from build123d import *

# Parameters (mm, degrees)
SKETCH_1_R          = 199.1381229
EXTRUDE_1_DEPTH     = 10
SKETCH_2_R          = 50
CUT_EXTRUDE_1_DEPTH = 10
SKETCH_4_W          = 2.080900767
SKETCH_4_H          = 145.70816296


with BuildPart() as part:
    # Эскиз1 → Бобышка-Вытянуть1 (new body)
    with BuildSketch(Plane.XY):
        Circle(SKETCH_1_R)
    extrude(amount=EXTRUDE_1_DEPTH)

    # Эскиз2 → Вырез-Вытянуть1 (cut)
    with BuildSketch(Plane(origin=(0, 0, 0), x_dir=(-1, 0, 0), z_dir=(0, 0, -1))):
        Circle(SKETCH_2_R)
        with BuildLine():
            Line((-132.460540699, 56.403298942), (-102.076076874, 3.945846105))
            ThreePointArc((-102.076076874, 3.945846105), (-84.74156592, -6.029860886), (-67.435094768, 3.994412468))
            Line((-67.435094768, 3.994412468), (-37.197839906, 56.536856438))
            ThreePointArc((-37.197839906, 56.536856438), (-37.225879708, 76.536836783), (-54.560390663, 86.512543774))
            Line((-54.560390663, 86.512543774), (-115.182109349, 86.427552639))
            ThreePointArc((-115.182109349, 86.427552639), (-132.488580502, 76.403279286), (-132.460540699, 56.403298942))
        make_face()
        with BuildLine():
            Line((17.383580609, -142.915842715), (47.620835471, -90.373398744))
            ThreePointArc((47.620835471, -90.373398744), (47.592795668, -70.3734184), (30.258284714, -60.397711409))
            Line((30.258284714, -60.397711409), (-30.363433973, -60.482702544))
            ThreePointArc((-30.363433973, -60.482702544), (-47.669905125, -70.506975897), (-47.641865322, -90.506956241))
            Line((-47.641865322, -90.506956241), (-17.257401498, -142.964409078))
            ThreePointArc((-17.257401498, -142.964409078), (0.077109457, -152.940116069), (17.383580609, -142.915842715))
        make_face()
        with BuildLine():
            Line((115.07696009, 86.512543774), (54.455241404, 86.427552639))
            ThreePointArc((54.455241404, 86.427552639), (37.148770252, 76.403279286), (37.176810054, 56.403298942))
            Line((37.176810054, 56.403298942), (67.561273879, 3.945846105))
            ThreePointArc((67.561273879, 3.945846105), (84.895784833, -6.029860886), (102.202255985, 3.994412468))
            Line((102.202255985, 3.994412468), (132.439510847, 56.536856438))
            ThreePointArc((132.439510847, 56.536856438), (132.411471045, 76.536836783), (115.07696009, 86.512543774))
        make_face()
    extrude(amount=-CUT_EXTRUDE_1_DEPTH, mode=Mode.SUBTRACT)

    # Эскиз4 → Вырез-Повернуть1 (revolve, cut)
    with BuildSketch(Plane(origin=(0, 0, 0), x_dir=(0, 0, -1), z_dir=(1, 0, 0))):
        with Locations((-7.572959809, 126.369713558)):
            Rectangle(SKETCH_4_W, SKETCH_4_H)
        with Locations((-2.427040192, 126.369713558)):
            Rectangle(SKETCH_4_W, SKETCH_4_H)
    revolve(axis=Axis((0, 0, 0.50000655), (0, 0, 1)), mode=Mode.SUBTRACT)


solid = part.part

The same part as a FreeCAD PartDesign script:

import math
import FreeCAD as App
import Part
import Sketcher

V = App.Vector


def add_polygon(sketch, points):
    """Adds a closed chain of lines whose ends are joined by coincident constraints."""
    first, n = sketch.GeometryCount, len(points)
    for a, b in zip(points, points[1:] + points[:1]):
        sketch.addGeometry(Part.LineSegment(App.Vector(*a, 0), App.Vector(*b, 0)), False)
    for i in range(n):
        sketch.addConstraint(Sketcher.Constraint("Coincident", first + i, 2, first + (i + 1) % n, 1))

doc = App.newDocument("Part")
params = doc.addObject("Spreadsheet::Sheet", "Params")
for row, (alias, value) in enumerate([
    ("pad1_length", "10 mm"),
    ("sketch2_diameter", "100 mm"),
    ("sketch2_radius", "20 mm"),
    ("pocket1_length", "10 mm"),
    ("groove_angle", "360 deg"),
], start=1):
    params.set(f"A{row}", alias)
    params.set(f"B{row}", "=" + value)
    params.setAlias(f"B{row}", alias)

body = doc.addObject("PartDesign::Body", "Body")

sketch1 = doc.addObject("Sketcher::SketchObject", "Sketch")
body.addObject(sketch1)
sketch1.AttachmentSupport = (doc.XY_Plane, [""])
sketch1.MapMode = "FlatFace"
sketch1.addGeometry(Part.Circle(V(0, 0, 0), V(0, 0, 1), 199.138123), False)
sketch1.addConstraint([
    Sketcher.Constraint("Coincident", 0, 3, -1, 1),
    Sketcher.Constraint("Diameter", 0, 398.276246),
])
pad1 = doc.addObject("PartDesign::Pad", "Pad")
body.addObject(pad1)
pad1.Profile = sketch1
pad1.setExpression("Length", "Params.pad1_length")

sketch2 = doc.addObject("Sketcher::SketchObject", "Sketch001")
body.addObject(sketch2)
sketch2.AttachmentSupport = (doc.XY_Plane, [""])
sketch2.MapMode = "FlatFace"
sketch2.addGeometry([
    Part.Circle(V(0, 0, 0), V(0, 0, 1), 50),
    Part.LineSegment(V(132.460541, 56.403299, 0), V(102.076077, 3.945846, 0)),
    Part.ArcOfCircle(Part.Circle(V(84.769606, 13.970119, 0), V(0, 0, 1), 20), math.radians(-150.080328), math.radians(-30.080328)),
    Part.LineSegment(V(67.435095, 3.994412, 0), V(37.19784, 56.536856, 0)),
    Part.ArcOfCircle(Part.Circle(V(54.532351, 66.512563, 0), V(0, 0, 1), 20), math.radians(89.919672), math.radians(209.919672)),
    Part.LineSegment(V(54.560391, 86.512544, 0), V(115.182109, 86.427553, 0)),
    Part.ArcOfCircle(Part.Circle(V(115.15407, 66.427572, 0), V(0, 0, 1), 20), math.radians(-30.080328), math.radians(89.919672)),
    Part.LineSegment(V(-17.383581, -142.915843, 0), V(-47.620835, -90.373399, 0)),
    Part.ArcOfCircle(Part.Circle(V(-30.286325, -80.397692, 0), V(0, 0, 1), 20), math.radians(89.919672), math.radians(209.919672)),
    Part.LineSegment(V(-30.258285, -60.397711, 0), V(30.363434, -60.482703, 0)),
    Part.ArcOfCircle(Part.Circle(V(30.335394, -80.482683, 0), V(0, 0, 1), 20), math.radians(-30.080328), math.radians(89.919672)),
    Part.LineSegment(V(47.641865, -90.506956, 0), V(17.257401, -142.964409, 0)),
    Part.ArcOfCircle(Part.Circle(V(-0.04907, -132.940136, 0), V(0, 0, 1), 20), math.radians(-150.080328), math.radians(-30.080328)),
    Part.LineSegment(V(-115.07696, 86.512544, 0), V(-54.455241, 86.427553, 0)),
    Part.ArcOfCircle(Part.Circle(V(-54.483281, 66.427572, 0), V(0, 0, 1), 20), math.radians(-30.080328), math.radians(89.919672)),
    Part.LineSegment(V(-37.17681, 56.403299, 0), V(-67.561274, 3.945846, 0)),
    Part.ArcOfCircle(Part.Circle(V(-84.867745, 13.970119, 0), V(0, 0, 1), 20), math.radians(-150.080328), math.radians(-30.080328)),
    Part.LineSegment(V(-102.202256, 3.994412, 0), V(-132.439511, 56.536856, 0)),
    Part.ArcOfCircle(Part.Circle(V(-115.105, 66.512563, 0), V(0, 0, 1), 20), math.radians(89.919672), math.radians(209.919672)),
], False)
sketch2.addConstraint([
    Sketcher.Constraint("Tangent", 1, 2, 2, 2),
    Sketcher.Constraint("Tangent", 2, 1, 3, 1),
    Sketcher.Constraint("Tangent", 3, 2, 4, 2),
    Sketcher.Constraint("Tangent", 4, 1, 5, 1),
    Sketcher.Constraint("Tangent", 5, 2, 6, 2),
    Sketcher.Constraint("Tangent", 6, 1, 1, 1),
    Sketcher.Constraint("Tangent", 7, 2, 8, 2),
    Sketcher.Constraint("Tangent", 8, 1, 9, 1),
    Sketcher.Constraint("Tangent", 9, 2, 10, 2),
    Sketcher.Constraint("Tangent", 10, 1, 11, 1),
    Sketcher.Constraint("Tangent", 11, 2, 12, 2),
    Sketcher.Constraint("Tangent", 12, 1, 7, 1),
    Sketcher.Constraint("Tangent", 13, 2, 14, 2),
    Sketcher.Constraint("Tangent", 14, 1, 15, 1),
    Sketcher.Constraint("Tangent", 15, 2, 16, 2),
    Sketcher.Constraint("Tangent", 16, 1, 17, 1),
    Sketcher.Constraint("Tangent", 17, 2, 18, 2),
    Sketcher.Constraint("Tangent", 18, 1, 13, 1),
    Sketcher.Constraint("Coincident", 0, 3, -1, 1),
    Sketcher.Constraint("Equal", 2, 4),
    Sketcher.Constraint("Equal", 4, 6),
    Sketcher.Constraint("Equal", 6, 8),
    Sketcher.Constraint("Equal", 8, 10),
    Sketcher.Constraint("Equal", 10, 12),
    Sketcher.Constraint("Equal", 12, 14),
    Sketcher.Constraint("Equal", 14, 16),
    Sketcher.Constraint("Equal", 16, 18),
    Sketcher.Constraint("Parallel", 3, 7),
    Sketcher.Constraint("Parallel", 5, 9),
    Sketcher.Constraint("Parallel", 1, 11),
    Sketcher.Constraint("Parallel", 9, 13),
    Sketcher.Constraint("Parallel", 11, 15),
    Sketcher.Constraint("Parallel", 7, 17),
    Sketcher.Constraint("Horizontal", 6, 3, 14, 3),
    Sketcher.Constraint("Horizontal", 2, 3, 16, 3),
    Sketcher.Constraint("Equal", 1, 3),
    Sketcher.Constraint("Equal", 3, 5),
    Sketcher.Constraint("Equal", 5, 7),
    Sketcher.Constraint("Diameter", 0, 100.0),
    Sketcher.Constraint("Radius", 2, 20.0),
    Sketcher.Constraint("DistanceX", 18, 3, -1, 1, 115.105),
    Sketcher.Constraint("DistanceY", -1, 1, 6, 1, 56.403299),
    Sketcher.Constraint("DistanceY", 7, 2, -1, 1, 90.373399),
    Sketcher.Constraint("DistanceX", -1, 1, 11, 2, 17.257401),
    Sketcher.Constraint("DistanceY", 12, 3, 4, 3, 199.452699),
    Sketcher.Constraint("Distance", 1, 60.621778),
    Sketcher.Constraint("DistanceX", -1, 1, 4, 3, 54.532351),
])
sketch2.setExpression("Constraints[38]", "Params.sketch2_diameter")
sketch2.setExpression("Constraints[39]", "Params.sketch2_radius")
pocket1 = doc.addObject("PartDesign::Pocket", "Pocket")
body.addObject(pocket1)
pocket1.Profile = sketch2
pocket1.setExpression("Length", "Params.pocket1_length")
pocket1.Reversed = True

sketch3 = doc.addObject("Sketcher::SketchObject", "Sketch002")
body.addObject(sketch3)
sketch3.AttachmentSupport = (doc.YZ_Plane, [""])
sketch3.MapMode = "FlatFace"
add_polygon(sketch3, [(199.223795, 8.61341), (53.515632, 8.61341), (53.515632, 6.532509), (199.223795, 6.532509)])
add_polygon(sketch3, [(199.223795, 3.467491), (53.515632, 3.467491), (53.515632, 1.38659), (199.223795, 1.38659)])
sketch3.addConstraint([
    Sketcher.Constraint("Horizontal", 0),
    Sketcher.Constraint("Vertical", 1),
    Sketcher.Constraint("Horizontal", 2),
    Sketcher.Constraint("Vertical", 3),
    Sketcher.Constraint("Horizontal", 4),
    Sketcher.Constraint("Vertical", 5),
    Sketcher.Constraint("Horizontal", 6),
    Sketcher.Constraint("Vertical", 7),
    Sketcher.Constraint("Vertical", 1, 2, 4, 2),
    Sketcher.Constraint("Vertical", 3, 2, 6, 2),
    Sketcher.Constraint("Equal", 3, 5),
    Sketcher.Constraint("DistanceY", 1, 2, 1, 1, 2.080901),
    Sketcher.Constraint("DistanceX", 0, 2, 0, 1, 145.708163),
    Sketcher.Constraint("DistanceY", -1, 1, 0, 2, 8.61341),
    Sketcher.Constraint("DistanceY", -1, 1, 4, 2, 3.467491),
    Sketcher.Constraint("DistanceX", -1, 1, 0, 2, 53.515632),
])
groove = doc.addObject("PartDesign::Groove", "Groove")
body.addObject(groove)
groove.Profile = sketch3
groove.ReferenceAxis = (sketch3, ["V_Axis"])
groove.setExpression("Angle", "Params.groove_angle")

doc.recompute()
